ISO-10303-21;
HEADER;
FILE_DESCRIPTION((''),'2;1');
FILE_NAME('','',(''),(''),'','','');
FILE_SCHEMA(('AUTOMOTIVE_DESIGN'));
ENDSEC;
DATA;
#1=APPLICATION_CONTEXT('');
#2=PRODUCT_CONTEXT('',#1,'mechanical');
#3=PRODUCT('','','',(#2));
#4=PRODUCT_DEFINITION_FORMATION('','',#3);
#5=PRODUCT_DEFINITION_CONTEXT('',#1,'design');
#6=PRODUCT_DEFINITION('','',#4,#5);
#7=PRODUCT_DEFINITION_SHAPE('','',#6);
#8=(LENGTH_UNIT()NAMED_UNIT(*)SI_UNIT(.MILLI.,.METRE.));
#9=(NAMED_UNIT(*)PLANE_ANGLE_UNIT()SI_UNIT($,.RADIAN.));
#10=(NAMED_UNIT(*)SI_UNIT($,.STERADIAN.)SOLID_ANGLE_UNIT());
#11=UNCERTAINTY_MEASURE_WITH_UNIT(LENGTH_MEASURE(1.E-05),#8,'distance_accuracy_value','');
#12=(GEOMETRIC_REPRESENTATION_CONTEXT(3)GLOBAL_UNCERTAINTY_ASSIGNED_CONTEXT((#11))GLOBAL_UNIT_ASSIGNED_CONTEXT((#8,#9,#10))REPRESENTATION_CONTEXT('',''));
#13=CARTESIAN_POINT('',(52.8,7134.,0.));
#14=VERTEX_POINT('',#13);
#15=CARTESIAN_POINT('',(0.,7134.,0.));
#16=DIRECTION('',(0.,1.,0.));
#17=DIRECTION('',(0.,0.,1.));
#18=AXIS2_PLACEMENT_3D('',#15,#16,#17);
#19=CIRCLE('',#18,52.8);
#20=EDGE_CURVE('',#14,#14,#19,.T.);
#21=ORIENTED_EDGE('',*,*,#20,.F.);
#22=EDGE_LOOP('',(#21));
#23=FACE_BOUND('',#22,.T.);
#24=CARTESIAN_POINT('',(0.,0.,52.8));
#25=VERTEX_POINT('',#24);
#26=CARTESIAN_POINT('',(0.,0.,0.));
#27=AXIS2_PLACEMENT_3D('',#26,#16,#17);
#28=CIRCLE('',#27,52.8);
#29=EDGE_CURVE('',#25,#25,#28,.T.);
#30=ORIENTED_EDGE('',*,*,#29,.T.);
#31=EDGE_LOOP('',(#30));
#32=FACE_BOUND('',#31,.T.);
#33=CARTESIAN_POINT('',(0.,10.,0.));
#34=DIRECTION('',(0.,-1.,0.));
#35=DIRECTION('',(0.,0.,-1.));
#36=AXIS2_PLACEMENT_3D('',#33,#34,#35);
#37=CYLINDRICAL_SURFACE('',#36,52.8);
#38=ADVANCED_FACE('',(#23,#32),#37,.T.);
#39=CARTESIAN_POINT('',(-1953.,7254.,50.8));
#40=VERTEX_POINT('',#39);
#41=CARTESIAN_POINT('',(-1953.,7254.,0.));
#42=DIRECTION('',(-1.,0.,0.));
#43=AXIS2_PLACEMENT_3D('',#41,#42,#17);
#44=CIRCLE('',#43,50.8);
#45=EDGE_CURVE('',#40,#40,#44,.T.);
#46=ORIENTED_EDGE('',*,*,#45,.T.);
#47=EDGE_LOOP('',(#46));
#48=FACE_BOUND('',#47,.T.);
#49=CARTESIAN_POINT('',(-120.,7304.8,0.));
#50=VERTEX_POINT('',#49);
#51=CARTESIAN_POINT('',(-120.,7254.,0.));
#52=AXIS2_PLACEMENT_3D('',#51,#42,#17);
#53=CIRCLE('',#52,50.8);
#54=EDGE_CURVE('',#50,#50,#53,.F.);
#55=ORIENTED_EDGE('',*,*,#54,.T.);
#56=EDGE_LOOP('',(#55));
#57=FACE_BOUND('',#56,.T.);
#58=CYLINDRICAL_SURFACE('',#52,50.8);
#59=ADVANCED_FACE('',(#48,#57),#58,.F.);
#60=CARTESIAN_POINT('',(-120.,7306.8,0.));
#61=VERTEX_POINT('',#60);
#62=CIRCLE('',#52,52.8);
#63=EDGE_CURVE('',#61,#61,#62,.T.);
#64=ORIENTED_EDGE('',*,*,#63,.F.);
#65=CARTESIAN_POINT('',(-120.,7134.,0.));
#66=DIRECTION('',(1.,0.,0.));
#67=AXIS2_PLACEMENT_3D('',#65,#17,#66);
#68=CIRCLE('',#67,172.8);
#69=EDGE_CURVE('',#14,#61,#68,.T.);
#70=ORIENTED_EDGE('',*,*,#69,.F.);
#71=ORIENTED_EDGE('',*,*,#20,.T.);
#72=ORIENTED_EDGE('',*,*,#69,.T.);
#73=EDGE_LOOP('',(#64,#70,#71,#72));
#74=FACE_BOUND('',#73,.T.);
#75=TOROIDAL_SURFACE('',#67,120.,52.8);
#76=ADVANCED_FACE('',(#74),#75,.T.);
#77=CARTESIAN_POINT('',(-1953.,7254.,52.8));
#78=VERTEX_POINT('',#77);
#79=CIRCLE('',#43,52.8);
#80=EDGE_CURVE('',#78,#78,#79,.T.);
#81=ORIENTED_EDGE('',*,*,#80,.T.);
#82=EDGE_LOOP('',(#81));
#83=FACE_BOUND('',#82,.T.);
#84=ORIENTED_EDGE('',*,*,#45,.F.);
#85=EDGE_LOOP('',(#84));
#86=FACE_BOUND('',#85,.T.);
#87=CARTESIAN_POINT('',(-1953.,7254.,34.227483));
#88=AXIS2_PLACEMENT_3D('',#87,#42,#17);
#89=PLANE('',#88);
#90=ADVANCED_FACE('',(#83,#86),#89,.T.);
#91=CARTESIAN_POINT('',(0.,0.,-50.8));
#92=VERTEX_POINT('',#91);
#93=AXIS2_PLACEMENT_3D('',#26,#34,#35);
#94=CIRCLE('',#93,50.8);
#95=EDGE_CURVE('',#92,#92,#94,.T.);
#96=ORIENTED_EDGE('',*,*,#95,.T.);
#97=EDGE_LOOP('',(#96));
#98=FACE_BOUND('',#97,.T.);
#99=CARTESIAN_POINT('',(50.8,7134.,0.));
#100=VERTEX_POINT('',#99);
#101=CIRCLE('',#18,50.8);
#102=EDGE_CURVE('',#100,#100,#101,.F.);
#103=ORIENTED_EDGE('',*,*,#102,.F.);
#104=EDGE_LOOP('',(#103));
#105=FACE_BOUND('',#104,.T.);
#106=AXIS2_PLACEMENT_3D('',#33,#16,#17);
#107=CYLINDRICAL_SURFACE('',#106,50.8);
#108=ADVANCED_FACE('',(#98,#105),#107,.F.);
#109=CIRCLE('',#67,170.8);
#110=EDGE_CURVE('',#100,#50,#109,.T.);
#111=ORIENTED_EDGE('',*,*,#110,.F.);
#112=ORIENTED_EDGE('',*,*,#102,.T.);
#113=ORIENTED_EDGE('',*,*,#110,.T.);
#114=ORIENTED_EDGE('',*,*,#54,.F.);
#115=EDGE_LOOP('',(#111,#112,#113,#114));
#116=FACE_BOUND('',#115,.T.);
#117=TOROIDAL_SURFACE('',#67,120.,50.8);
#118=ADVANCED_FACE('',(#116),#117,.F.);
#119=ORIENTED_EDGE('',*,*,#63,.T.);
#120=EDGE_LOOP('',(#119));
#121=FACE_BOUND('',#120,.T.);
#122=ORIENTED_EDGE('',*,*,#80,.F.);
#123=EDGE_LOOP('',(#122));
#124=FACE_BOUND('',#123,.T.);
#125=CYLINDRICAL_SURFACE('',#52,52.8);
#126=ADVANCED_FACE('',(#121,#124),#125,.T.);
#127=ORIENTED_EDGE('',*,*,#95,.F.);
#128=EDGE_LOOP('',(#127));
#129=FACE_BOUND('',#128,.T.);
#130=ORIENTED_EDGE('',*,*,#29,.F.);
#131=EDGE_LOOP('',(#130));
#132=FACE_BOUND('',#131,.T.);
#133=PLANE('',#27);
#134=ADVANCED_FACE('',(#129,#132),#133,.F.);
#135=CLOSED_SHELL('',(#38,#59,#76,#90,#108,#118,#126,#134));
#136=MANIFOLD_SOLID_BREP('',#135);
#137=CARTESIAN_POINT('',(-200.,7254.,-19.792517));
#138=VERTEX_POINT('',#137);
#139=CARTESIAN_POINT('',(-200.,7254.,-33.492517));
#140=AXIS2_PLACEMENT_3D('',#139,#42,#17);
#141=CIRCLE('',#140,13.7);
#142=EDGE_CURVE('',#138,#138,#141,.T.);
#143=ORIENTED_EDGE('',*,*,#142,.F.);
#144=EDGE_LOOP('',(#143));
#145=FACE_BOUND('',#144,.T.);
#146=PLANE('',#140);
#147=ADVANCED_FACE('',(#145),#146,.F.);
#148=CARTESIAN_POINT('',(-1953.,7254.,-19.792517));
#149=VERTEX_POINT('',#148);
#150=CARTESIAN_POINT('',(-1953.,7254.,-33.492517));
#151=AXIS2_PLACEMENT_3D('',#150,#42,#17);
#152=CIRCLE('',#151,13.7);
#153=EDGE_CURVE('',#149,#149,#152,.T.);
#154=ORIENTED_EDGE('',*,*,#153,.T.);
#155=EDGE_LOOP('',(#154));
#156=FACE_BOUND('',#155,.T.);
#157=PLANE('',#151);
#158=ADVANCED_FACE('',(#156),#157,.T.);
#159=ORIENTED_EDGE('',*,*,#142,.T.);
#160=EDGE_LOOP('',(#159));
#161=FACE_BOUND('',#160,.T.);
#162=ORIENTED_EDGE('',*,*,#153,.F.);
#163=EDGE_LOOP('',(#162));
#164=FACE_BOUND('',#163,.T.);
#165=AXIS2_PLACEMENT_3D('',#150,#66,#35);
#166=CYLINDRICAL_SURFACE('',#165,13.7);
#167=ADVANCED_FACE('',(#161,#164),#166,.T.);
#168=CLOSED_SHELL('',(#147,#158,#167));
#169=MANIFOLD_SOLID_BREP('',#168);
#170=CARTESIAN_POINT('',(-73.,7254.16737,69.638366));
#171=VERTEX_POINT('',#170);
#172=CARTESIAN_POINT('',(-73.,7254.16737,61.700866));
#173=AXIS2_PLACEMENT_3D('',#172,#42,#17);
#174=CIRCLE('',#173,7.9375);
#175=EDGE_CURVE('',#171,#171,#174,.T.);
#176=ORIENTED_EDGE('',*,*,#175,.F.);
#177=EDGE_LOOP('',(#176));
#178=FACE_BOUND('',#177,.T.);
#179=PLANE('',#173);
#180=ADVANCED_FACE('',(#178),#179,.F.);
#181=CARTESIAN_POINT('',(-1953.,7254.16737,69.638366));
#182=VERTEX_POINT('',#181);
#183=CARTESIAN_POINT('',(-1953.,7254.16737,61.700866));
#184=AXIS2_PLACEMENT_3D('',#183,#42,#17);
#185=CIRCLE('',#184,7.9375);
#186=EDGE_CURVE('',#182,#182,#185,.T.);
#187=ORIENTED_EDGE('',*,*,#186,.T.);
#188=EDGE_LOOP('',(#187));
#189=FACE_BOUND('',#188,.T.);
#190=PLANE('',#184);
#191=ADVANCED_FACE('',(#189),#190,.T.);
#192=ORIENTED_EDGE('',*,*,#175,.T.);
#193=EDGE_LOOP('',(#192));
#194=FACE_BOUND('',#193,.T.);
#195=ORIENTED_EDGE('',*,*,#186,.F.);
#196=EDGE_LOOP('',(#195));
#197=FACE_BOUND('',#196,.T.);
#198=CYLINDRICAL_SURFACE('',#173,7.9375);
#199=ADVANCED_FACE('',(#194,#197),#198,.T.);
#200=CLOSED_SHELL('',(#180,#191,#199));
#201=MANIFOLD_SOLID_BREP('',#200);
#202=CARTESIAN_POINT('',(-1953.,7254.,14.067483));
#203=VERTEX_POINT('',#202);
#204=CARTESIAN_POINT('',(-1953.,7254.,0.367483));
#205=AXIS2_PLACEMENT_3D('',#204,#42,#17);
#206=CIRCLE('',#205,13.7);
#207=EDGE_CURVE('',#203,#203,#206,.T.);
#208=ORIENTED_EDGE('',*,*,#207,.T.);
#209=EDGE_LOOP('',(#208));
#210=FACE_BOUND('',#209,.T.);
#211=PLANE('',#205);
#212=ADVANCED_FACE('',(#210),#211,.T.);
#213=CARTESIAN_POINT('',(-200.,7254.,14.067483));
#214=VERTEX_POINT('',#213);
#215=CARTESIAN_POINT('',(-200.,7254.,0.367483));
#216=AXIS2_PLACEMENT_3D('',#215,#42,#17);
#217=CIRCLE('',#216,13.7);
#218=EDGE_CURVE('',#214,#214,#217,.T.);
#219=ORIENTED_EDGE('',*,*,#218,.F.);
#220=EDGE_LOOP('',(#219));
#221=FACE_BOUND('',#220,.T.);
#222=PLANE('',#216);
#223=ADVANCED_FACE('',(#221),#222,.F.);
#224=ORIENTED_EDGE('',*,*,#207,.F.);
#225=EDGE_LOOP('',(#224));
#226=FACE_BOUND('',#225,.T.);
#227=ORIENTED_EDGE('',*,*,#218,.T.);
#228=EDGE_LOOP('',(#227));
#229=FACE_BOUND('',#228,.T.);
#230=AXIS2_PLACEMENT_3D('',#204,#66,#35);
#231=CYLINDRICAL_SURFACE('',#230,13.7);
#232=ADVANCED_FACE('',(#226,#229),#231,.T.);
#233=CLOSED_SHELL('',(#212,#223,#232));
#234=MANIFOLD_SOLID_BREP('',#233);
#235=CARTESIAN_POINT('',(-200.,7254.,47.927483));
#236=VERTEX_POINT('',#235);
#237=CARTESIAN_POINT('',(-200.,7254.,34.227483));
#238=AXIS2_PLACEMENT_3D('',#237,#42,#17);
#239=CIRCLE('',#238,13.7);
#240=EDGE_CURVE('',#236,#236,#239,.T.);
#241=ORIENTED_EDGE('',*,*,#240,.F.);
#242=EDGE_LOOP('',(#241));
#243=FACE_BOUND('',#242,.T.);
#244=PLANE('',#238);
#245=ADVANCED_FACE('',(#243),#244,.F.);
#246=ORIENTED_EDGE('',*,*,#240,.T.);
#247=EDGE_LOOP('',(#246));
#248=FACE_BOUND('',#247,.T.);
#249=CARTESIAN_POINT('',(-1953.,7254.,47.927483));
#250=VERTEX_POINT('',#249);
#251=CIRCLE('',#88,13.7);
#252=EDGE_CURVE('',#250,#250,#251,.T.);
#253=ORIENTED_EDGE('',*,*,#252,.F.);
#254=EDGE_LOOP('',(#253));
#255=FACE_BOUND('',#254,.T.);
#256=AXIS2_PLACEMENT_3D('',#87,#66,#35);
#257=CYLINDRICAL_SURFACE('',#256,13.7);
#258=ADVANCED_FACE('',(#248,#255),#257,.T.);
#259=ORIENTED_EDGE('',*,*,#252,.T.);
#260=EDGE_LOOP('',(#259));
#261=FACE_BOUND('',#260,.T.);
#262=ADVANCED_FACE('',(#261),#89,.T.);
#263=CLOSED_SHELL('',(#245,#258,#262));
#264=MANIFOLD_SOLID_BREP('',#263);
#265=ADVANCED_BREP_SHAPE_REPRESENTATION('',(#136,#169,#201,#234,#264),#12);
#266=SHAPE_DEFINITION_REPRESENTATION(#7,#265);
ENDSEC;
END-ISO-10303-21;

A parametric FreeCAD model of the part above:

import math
import FreeCAD as App
import Part
import Sketcher
from FreeCAD import Vector
Q = App.Units.Quantity

doc = App.newDocument("Part")
params = doc.addObject("Spreadsheet::Sheet", "Params")
for row, (alias, value) in enumerate([
    ("sketch1_diameter", "105.6 mm"),
    ("pad1_length", "10 mm"),
    ("sketch2_diameter", "105.6 mm"),
    ("sketch2_diameter2", "101.6 mm"),
    ("sketch3_radius", "120 mm"),
    ("sketch3_width", "80 mm"),
    ("sketch3_height", "7134 mm"),
    ("sketch4_diameter", "101.6 mm"),
    ("pocket1_length", "100 mm"),
    ("sketch5_diameter", "105.6 mm"),
    ("sketch5_diameter2", "101.6 mm"),
    ("pad2_length", "1753 mm"),
    ("sketch6_diameter", "27.4 mm"),
    ("pad3_length", "1753 mm"),
    ("sketch7_diameter", "27.4 mm"),
    ("pad4_length", "1753 mm"),
    ("sketch8_diameter", "27.4 mm"),
    ("pad5_length", "1753 mm"),
    ("pad6_length", "1880 mm"),
], start=1):
    params.set(f"A{row}", alias)
    params.set(f"B{row}", "=" + value)
    params.setAlias(f"B{row}", alias)

body = doc.addObject("PartDesign::Body", "Body")

sketch1 = body.newObject("Sketcher::SketchObject", "Sketch")
sketch1.AttachmentSupport = (doc.getObject("XZ_Plane"), [""])
sketch1.MapMode = "FlatFace"
sketch1.addGeometry(Part.Circle(Vector(0, 0, 0), Vector(0, 0, 1), 52.8), False)
sketch1.addConstraint([
    Sketcher.Constraint("Coincident", 0, 3, -1, 1),
    Sketcher.Constraint("Diameter", 0, Q("105.6 mm")),
])
sketch1.setExpression("Constraints[1]", "Params.sketch1_diameter")
pad1 = body.newObject("PartDesign::Pad", "Pad")
pad1.Profile = sketch1
pad1.setExpression("Length", "Params.pad1_length")
pad1.Reversed = True

sketch2 = body.newObject("Sketcher::SketchObject", "Sketch001")
sketch2.AttachmentSupport = (doc.getObject("XZ_Plane"), [""])
sketch2.MapMode = "FlatFace"
sketch2.AttachmentOffset = App.Placement(Vector(0, 0, -10), App.Rotation())
sketch2.addGeometry([
    Part.Circle(Vector(0, 0, 0), Vector(0, 0, 1), 52.8),
    Part.Circle(Vector(0, 0, 0), Vector(0, 0, 1), 50.8),
], False)
sketch2.addConstraint([
    Sketcher.Constraint("Coincident", 0, 3, -1, 1),
    Sketcher.Constraint("Coincident", 1, 3, -1, 1),
    Sketcher.Constraint("Diameter", 0, Q("105.6 mm")),
    Sketcher.Constraint("Diameter", 1, Q("101.6 mm")),
])
sketch2.setExpression("Constraints[2]", "Params.sketch2_diameter")
sketch2.setExpression("Constraints[3]", "Params.sketch2_diameter2")

sketch3 = body.newObject("Sketcher::SketchObject", "Sketch002")
sketch3.AttachmentSupport = (doc.getObject("XY_Plane"), [""])
sketch3.MapMode = "FlatFace"
sketch3.addGeometry([
    Part.LineSegment(Vector(0, 0, 0), Vector(0, 7134, 0)),
    Part.ArcOfCircle(Part.Circle(Vector(-120, 7134, 0), Vector(0, 0, 1), 120), math.radians(0), math.radians(90)),
    Part.LineSegment(Vector(-120, 7254, 0), Vector(-200, 7254, 0)),
], False)
sketch3.addConstraint([
    Sketcher.Constraint("Tangent", 0, 2, 1, 1),
    Sketcher.Constraint("Tangent", 1, 2, 2, 1),
    Sketcher.Constraint("Vertical", 0),
    Sketcher.Constraint("Horizontal", 2),
    Sketcher.Constraint("Coincident", 0, 1, -1, 1),
    Sketcher.Constraint("Radius", 1, Q("120 mm")),
    Sketcher.Constraint("DistanceX", 2, 2, 2, 1, Q("80 mm")),
    Sketcher.Constraint("DistanceY", 0, 1, 0, 2, Q("7134 mm")),
])
sketch3.setExpression("Constraints[5]", "Params.sketch3_radius")
sketch3.setExpression("Constraints[6]", "Params.sketch3_width")
sketch3.setExpression("Constraints[7]", "Params.sketch3_height")
doc.recompute()

additivepipe = body.newObject("PartDesign::AdditivePipe", "AdditivePipe")
additivepipe.Profile = sketch2
additivepipe.Spine = (sketch3, ["Edge1", "Edge2", "Edge3"])

sketch4 = body.newObject("Sketcher::SketchObject", "Sketch003")
sketch4.AttachmentSupport = (doc.getObject("XZ_Plane"), [""])
sketch4.MapMode = "FlatFace"
sketch4.addGeometry(Part.Circle(Vector(0, 0, 0), Vector(0, 0, 1), 50.8), False)
sketch4.addConstraint([
    Sketcher.Constraint("Coincident", 0, 3, -1, 1),
    Sketcher.Constraint("Diameter", 0, Q("101.6 mm")),
])
sketch4.setExpression("Constraints[1]", "Params.sketch4_diameter")
pocket1 = body.newObject("PartDesign::Pocket", "Pocket")
pocket1.Profile = sketch4
pocket1.setExpression("Length", "Params.pocket1_length")

sketch5 = body.newObject("Sketcher::SketchObject", "Sketch004")
sketch5.AttachmentSupport = (doc.getObject("YZ_Plane"), [""])
sketch5.MapMode = "FlatFace"
sketch5.AttachmentOffset = App.Placement(Vector(0, 0, -200), App.Rotation())
sketch5.addGeometry([
    Part.Circle(Vector(7254, 0, 0), Vector(0, 0, 1), 52.8),
    Part.Circle(Vector(7254, 0, 0), Vector(0, 0, 1), 50.8),
], False)
sketch5.addConstraint([
    Sketcher.Constraint("Coincident", 1, 3, 0, 3),
    Sketcher.Constraint("PointOnObject", 0, 3, -1),
    Sketcher.Constraint("Diameter", 0, Q("105.6 mm")),
    Sketcher.Constraint("Diameter", 1, Q("101.6 mm")),
    Sketcher.Constraint("DistanceX", -1, 1, 0, 3, Q("7254 mm")),
])
sketch5.setExpression("Constraints[2]", "Params.sketch5_diameter")
sketch5.setExpression("Constraints[3]", "Params.sketch5_diameter2")
pad2 = body.newObject("PartDesign::Pad", "Pad001")
pad2.Profile = sketch5
pad2.setExpression("Length", "Params.pad2_length")
pad2.Reversed = True
body2 = doc.addObject("PartDesign::Body", "Body001")

sketch6 = body2.newObject("Sketcher::SketchObject", "Sketch005")
sketch6.AttachmentSupport = (doc.getObject("YZ_Plane001"), [""])
sketch6.MapMode = "FlatFace"
sketch6.AttachmentOffset = App.Placement(Vector(0, 0, -200), App.Rotation())
sketch6.addGeometry(Part.Circle(Vector(7254, 34.227483, 0), Vector(0, 0, 1), 13.7), False)
sketch6.addConstraint([
    Sketcher.Constraint("Diameter", 0, Q("27.4 mm")),
    Sketcher.Constraint("DistanceX", -1, 1, 0, 3, Q("7254 mm")),
    Sketcher.Constraint("DistanceY", -1, 1, 0, 3, Q("34.227483 mm")),
])
sketch6.setExpression("Constraints[0]", "Params.sketch6_diameter")
pad3 = body2.newObject("PartDesign::Pad", "Pad002")
pad3.Profile = sketch6
pad3.setExpression("Length", "Params.pad3_length")
pad3.Reversed = True
body3 = doc.addObject("PartDesign::Body", "Body002")

sketch7 = body3.newObject("Sketcher::SketchObject", "Sketch006")
sketch7.AttachmentSupport = (doc.getObject("YZ_Plane002"), [""])
sketch7.MapMode = "FlatFace"
sketch7.AttachmentOffset = App.Placement(Vector(0, 0, -200), App.Rotation())
sketch7.addGeometry(Part.Circle(Vector(7254, 0.367483, 0), Vector(0, 0, 1), 13.7), False)
sketch7.addConstraint([
    Sketcher.Constraint("Diameter", 0, Q("27.4 mm")),
    Sketcher.Constraint("DistanceX", -1, 1, 0, 3, Q("7254 mm")),
    Sketcher.Constraint("DistanceY", -1, 1, 0, 3, Q("0.367483 mm")),
])
sketch7.setExpression("Constraints[0]", "Params.sketch7_diameter")
pad4 = body3.newObject("PartDesign::Pad", "Pad003")
pad4.Profile = sketch7
pad4.setExpression("Length", "Params.pad4_length")
pad4.Reversed = True
body4 = doc.addObject("PartDesign::Body", "Body003")

sketch8 = body4.newObject("Sketcher::SketchObject", "Sketch007")
sketch8.AttachmentSupport = (doc.getObject("YZ_Plane003"), [""])
sketch8.MapMode = "FlatFace"
sketch8.AttachmentOffset = App.Placement(Vector(0, 0, -200), App.Rotation())
sketch8.addGeometry(Part.Circle(Vector(7254, -33.492517, 0), Vector(0, 0, 1), 13.7), False)
sketch8.addConstraint([
    Sketcher.Constraint("Diameter", 0, Q("27.4 mm")),
    Sketcher.Constraint("DistanceX", -1, 1, 0, 3, Q("7254 mm")),
    Sketcher.Constraint("DistanceY", 0, 3, -1, 1, Q("33.492517 mm")),
])
sketch8.setExpression("Constraints[0]", "Params.sketch8_diameter")
pad5 = body4.newObject("PartDesign::Pad", "Pad004")
pad5.Profile = sketch8
pad5.setExpression("Length", "Params.pad5_length")
pad5.Reversed = True
body5 = doc.addObject("PartDesign::Body", "Body004")

sketch9 = body5.newObject("Sketcher::SketchObject", "Sketch008")
sketch9.AttachmentSupport = (doc.getObject("YZ_Plane004"), [""])
sketch9.MapMode = "FlatFace"
sketch9.AttachmentOffset = App.Placement(Vector(0, 0, -1953), App.Rotation())
sketch9.addGeometry(Part.Circle(Vector(7254.16737, 61.700866, 0), Vector(0, 0, 1), 7.9375), False)
sketch9.addConstraint([
    Sketcher.Constraint("Diameter", 0, Q("15.875 mm")),
    Sketcher.Constraint("DistanceX", -1, 1, 0, 3, Q("7254.16737 mm")),
    Sketcher.Constraint("DistanceY", -1, 1, 0, 3, Q("61.700866 mm")),
])
pad6 = body5.newObject("PartDesign::Pad", "Pad005")
pad6.Profile = sketch9
pad6.setExpression("Length", "Params.pad6_length")

doc.recompute()
